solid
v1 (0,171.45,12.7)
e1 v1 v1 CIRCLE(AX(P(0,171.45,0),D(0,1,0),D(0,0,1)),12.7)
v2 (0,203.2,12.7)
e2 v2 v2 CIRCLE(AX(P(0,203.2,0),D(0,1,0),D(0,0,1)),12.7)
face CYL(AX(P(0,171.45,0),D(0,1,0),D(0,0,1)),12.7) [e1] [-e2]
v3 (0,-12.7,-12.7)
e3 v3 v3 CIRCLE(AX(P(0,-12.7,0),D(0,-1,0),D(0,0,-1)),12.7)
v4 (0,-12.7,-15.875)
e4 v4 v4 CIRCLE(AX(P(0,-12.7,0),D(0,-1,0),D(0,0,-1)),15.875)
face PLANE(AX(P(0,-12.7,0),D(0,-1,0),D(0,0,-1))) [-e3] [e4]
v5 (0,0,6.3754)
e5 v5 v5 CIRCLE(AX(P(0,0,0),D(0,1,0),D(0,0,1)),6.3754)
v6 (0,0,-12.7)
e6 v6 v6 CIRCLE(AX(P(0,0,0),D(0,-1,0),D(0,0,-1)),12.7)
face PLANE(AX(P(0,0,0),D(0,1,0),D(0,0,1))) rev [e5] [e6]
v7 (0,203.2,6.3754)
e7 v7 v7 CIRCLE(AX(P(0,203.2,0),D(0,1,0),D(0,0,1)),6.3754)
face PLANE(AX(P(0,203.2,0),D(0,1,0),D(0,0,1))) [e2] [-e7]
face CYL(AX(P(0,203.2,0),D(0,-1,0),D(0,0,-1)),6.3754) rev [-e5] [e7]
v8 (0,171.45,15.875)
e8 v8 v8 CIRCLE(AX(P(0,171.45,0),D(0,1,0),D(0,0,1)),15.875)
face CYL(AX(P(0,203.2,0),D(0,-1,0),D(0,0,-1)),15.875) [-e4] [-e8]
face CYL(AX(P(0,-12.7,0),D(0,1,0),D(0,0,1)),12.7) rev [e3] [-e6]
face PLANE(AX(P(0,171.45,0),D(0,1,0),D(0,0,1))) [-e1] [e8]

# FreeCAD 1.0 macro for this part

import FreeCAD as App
import Part
import Sketcher
Q = App.Units.Quantity

doc = App.newDocument("Part")
body = doc.addObject("PartDesign::Body", "Body")

# Sketch on XZ plane
sketch1 = body.newObject("Sketcher::SketchObject", "Sketch")
sketch1.AttachmentSupport = (doc.getObject("XZ_Plane"), [""])
sketch1.MapMode = "FlatFace"
sketch1.addGeometry(Part.Circle(App.Vector(0, 0, 0), App.Vector(0, 0, 1), 16), False)
sketch1.addGeometry(Part.Circle(App.Vector(0, 0, 0), App.Vector(0, 0, 1), 6), False)
sketch1.addConstraint(Sketcher.Constraint("Coincident", 0, 3, -1, 1))
sketch1.addConstraint(Sketcher.Constraint("Coincident", 1, 3, -1, 1))
sketch1.addConstraint(Sketcher.Constraint("Diameter", 0, Q("1.25 in")))
sketch1.addConstraint(Sketcher.Constraint("Diameter", 1, Q("0.502 in")))
pad1 = body.newObject("PartDesign::Pad", "Pad")
pad1.Profile = sketch1
pad1.Length = Q("8 in")
pad1.Reversed = True

# Sketch on XZ plane
sketch2 = body.newObject("Sketcher::SketchObject", "Sketch001")
sketch2.AttachmentSupport = (doc.getObject("XZ_Plane"), [""])
sketch2.MapMode = "FlatFace"
sketch2.AttachmentOffset = App.Placement(App.Vector(0, 0, 0.5 * 25.4), App.Rotation())
sketch2.addGeometry(Part.Circle(App.Vector(0, 0, 0), App.Vector(0, 0, 1), 16), False)
sketch2.addGeometry(Part.Circle(App.Vector(0, 0, 0), App.Vector(0, 0, 1), 13), False)
sketch2.addConstraint(Sketcher.Constraint("Coincident", 0, 3, -1, 1))
sketch2.addConstraint(Sketcher.Constraint("Coincident", 1, 3, -1, 1))
sketch2.addConstraint(Sketcher.Constraint("Diameter", 1, Q("1 in")))
sketch2.addConstraint(Sketcher.Constraint("Diameter", 0, Q("1.25 in")))
pad2 = body.newObject("PartDesign::Pad", "Pad001")
pad2.Profile = sketch2
pad2.Length = Q("0.5 in")
pad2.Reversed = True

# Sketch on XZ plane
sketch3 = body.newObject("Sketcher::SketchObject", "Sketch002")
sketch3.AttachmentSupport = (doc.getObject("XZ_Plane"), [""])
sketch3.MapMode = "FlatFace"
sketch3.AttachmentOffset = App.Placement(App.Vector(0, 0, -6.75 * 25.4), App.Rotation())
sketch3.addGeometry(Part.Circle(App.Vector(0, 0, 0), App.Vector(0, 0, 1), 16), False)
sketch3.addGeometry(Part.Circle(App.Vector(0, 0, 0), App.Vector(0, 0, 1), 13), False)
sketch3.addConstraint(Sketcher.Constraint("Coincident", 0, 3, -1, 1))
sketch3.addConstraint(Sketcher.Constraint("Coincident", 1, 3, -1, 1))
sketch3.addConstraint(Sketcher.Constraint("Diameter", 1, Q("1 in")))
sketch3.addConstraint(Sketcher.Constraint("Diameter", 0, Q("1.25 in")))
pocket1 = body.newObject("PartDesign::Pocket", "Pocket")
pocket1.Profile = sketch3
pocket1.Length = Q("1.25 in")

doc.recompute()
